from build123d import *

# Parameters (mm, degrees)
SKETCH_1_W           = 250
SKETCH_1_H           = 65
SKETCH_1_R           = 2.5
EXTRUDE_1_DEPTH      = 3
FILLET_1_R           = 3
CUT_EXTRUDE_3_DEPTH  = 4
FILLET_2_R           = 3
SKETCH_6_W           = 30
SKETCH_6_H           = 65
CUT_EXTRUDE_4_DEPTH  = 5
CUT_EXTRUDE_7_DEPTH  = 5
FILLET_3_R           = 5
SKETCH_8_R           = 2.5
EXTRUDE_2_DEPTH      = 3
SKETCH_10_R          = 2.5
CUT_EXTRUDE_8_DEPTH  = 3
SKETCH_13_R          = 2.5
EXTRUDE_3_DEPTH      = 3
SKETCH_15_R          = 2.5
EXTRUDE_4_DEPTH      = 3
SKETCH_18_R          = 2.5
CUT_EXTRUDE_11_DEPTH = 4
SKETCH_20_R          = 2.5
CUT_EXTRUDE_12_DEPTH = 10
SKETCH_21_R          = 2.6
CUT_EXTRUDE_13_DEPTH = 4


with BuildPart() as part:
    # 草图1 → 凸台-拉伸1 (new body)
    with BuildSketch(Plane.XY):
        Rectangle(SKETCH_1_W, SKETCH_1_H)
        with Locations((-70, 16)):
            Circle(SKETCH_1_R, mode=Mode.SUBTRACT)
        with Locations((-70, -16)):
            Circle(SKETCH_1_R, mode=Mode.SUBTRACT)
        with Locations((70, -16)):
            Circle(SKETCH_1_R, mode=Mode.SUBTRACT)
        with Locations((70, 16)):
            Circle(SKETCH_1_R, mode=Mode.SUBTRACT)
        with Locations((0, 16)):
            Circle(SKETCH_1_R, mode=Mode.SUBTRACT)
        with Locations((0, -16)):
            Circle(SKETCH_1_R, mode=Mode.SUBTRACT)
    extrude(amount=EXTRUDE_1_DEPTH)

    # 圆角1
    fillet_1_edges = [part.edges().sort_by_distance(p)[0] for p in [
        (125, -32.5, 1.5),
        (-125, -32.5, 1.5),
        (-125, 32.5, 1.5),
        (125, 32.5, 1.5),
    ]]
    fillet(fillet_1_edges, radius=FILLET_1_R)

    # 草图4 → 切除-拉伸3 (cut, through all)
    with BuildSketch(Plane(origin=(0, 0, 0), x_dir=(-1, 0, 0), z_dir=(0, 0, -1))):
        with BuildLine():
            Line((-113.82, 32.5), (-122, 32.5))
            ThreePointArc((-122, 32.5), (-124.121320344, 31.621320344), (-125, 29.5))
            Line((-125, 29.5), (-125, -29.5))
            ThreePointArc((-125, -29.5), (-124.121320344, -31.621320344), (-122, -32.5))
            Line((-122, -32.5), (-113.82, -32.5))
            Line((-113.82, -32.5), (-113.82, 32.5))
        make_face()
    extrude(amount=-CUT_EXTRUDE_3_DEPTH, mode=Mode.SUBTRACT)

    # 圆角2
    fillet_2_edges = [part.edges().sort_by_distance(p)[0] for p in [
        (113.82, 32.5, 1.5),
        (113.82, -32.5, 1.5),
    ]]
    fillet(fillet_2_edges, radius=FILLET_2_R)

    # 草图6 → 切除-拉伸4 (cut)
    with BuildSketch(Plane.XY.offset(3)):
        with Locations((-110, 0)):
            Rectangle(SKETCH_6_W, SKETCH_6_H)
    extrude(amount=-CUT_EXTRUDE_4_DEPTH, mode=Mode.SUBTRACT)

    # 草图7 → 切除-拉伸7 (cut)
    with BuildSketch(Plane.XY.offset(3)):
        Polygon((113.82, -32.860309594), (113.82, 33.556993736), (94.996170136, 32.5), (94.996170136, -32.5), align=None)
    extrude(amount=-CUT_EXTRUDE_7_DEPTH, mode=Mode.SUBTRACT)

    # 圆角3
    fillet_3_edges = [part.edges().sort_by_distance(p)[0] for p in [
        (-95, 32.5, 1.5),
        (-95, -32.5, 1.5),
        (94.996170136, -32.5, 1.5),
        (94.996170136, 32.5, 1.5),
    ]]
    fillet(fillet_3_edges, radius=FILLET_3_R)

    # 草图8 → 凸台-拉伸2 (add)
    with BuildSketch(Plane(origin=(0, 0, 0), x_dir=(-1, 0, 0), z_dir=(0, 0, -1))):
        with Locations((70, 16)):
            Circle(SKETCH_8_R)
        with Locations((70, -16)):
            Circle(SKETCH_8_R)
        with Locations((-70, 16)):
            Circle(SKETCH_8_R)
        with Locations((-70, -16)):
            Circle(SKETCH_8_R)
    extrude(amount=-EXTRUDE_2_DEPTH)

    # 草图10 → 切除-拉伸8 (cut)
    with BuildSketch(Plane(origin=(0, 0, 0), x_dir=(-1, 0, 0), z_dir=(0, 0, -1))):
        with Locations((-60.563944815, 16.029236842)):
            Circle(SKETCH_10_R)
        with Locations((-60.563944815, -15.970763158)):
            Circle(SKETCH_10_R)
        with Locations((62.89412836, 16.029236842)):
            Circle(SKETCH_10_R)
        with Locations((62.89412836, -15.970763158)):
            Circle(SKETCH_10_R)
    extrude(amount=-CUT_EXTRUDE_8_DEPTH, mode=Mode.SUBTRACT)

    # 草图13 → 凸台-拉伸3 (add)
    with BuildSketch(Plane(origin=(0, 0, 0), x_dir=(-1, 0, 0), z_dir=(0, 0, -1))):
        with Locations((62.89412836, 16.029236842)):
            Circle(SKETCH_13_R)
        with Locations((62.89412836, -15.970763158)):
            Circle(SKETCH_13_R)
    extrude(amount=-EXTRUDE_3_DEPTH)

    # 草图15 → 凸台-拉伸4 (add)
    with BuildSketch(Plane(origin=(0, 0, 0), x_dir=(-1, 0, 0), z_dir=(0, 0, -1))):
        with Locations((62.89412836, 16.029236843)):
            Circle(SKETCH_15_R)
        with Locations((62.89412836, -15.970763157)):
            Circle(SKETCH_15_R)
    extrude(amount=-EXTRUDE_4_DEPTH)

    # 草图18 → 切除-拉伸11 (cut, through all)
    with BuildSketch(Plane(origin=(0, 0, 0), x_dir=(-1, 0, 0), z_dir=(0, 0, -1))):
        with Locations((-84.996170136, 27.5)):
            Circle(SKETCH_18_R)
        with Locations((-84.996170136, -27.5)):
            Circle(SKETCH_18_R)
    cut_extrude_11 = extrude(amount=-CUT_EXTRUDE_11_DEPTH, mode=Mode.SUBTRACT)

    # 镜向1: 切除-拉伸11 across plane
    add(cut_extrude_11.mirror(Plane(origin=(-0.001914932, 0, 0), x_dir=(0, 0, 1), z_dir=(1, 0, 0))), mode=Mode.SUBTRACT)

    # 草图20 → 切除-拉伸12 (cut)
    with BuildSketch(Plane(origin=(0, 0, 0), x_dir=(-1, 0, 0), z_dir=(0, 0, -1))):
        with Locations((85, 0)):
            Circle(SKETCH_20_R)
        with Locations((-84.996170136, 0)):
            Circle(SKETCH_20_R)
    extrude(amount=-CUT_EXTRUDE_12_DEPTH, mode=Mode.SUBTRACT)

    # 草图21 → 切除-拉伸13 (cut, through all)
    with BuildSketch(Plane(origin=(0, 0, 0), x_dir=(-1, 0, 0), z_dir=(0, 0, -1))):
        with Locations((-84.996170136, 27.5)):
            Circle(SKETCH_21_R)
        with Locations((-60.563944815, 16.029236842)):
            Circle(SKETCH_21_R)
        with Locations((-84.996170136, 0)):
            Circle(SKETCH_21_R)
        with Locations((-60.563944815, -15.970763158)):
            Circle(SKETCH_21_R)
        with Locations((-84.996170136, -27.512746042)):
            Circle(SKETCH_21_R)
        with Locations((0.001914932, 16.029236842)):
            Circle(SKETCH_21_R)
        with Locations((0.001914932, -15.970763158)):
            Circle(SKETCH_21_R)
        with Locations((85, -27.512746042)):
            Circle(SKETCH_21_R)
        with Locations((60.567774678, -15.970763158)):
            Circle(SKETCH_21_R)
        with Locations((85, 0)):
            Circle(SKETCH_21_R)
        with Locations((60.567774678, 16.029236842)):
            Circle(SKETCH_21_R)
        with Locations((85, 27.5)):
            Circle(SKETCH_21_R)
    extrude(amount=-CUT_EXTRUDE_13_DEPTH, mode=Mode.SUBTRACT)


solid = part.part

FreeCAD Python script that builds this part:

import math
import FreeCAD as App
import Part
import Sketcher

V = App.Vector
Q = App.Units.Quantity


def edges_at(feature, points):
    """Names of the edges that pass closest to the given points."""
    edges = feature.Shape.Edges
    near = lambda p: min(range(len(edges)), key=lambda i: edges[i].distToShape(Part.Vertex(*p))[0])
    return sorted({f"Edge{near(p) + 1}" for p in points})

doc = App.newDocument("Part")
body = doc.addObject("PartDesign::Body", "Body")

# Sketch on XY plane
sketch1 = body.newObject("Sketcher::SketchObject", "Sketch")
sketch1.AttachmentSupport = (doc.getObject("XY_Plane"), [""])
sketch1.MapMode = "FlatFace"
sketch1.addGeometry([
    Part.LineSegment(V(-125, 32.5, 0), V(-125, -32.5, 0)),  # 0
    Part.LineSegment(V(-125, -32.5, 0), V(125, -32.5, 0)),  # 1
    Part.LineSegment(V(125, -32.5, 0), V(125, 32.5, 0)),  # 2
    Part.LineSegment(V(125, 32.5, 0), V(-125, 32.5, 0)),  # 3
    Part.Circle(V(-70, -16, 0), V(0, 0, 1), 2.5),  # 4
    Part.Circle(V(0, -16, 0), V(0, 0, 1), 2.5),  # 5
    Part.Circle(V(70, -16, 0), V(0, 0, 1), 2.5),  # 6
    Part.Circle(V(-70, 16, 0), V(0, 0, 1), 2.5),  # 7
    Part.Circle(V(0, 16, 0), V(0, 0, 1), 2.5),  # 8
    Part.Circle(V(70, 16, 0), V(0, 0, 1), 2.5),  # 9
], False)
sketch1.addConstraint([
    Sketcher.Constraint("Coincident", 0, 2, 1, 1),
    Sketcher.Constraint("Coincident", 1, 2, 2, 1),
    Sketcher.Constraint("Coincident", 2, 2, 3, 1),
    Sketcher.Constraint("Coincident", 3, 2, 0, 1),
    Sketcher.Constraint("Vertical", 0),
    Sketcher.Constraint("Horizontal", 1),
    Sketcher.Constraint("Vertical", 2),
    Sketcher.Constraint("Horizontal", 3),
    Sketcher.Constraint("Equal", 4, 5),
    Sketcher.Constraint("Equal", 5, 6),
    Sketcher.Constraint("Equal", 6, 7),
    Sketcher.Constraint("Equal", 7, 8),
    Sketcher.Constraint("Equal", 8, 9),
    Sketcher.Constraint("Symmetric", 6, 3, 7, 3, -1, 1),
    Sketcher.Constraint("Symmetric", 5, 3, 8, 3, -1, 1),
    Sketcher.Constraint("Symmetric", 4, 3, 9, 3, -1, 1),
    Sketcher.Constraint("Symmetric", 0, 2, 2, 2, -1, 1),
    Sketcher.Constraint("Symmetric", 4, 3, 6, 3, -2),
    Sketcher.Constraint("PointOnObject", 5, 3, -2),
    Sketcher.Constraint("Horizontal", 4, 3, 5, 3),
    Sketcher.Constraint("Diameter", 4, Q("5 mm")),
    Sketcher.Constraint("DistanceX", 1, 1, 1, 2, Q("250 mm")),
    Sketcher.Constraint("DistanceY", 0, 2, 0, 1, Q("65 mm")),
    Sketcher.Constraint("DistanceX", 4, 3, -1, 1, Q("70 mm")),
    Sketcher.Constraint("DistanceY", 4, 3, -1, 1, Q("16 mm")),
])
pad1 = body.newObject("PartDesign::Pad", "Pad")
pad1.Profile = sketch1
pad1.Length = 3
doc.recompute()

fillet = body.newObject("PartDesign::Fillet", "Fillet")
fillet.Base = (pad1, edges_at(pad1, [
    (125, -32.5, 1.5),
    (-125, -32.5, 1.5),
    (-125, 32.5, 1.5),
    (125, 32.5, 1.5),
]))
fillet.Radius = 3

# Sketch on XY plane
sketch2 = body.newObject("Sketcher::SketchObject", "Sketch001")
sketch2.AttachmentSupport = (doc.getObject("XY_Plane"), [""])
sketch2.MapMode = "FlatFace"
sketch2.addGeometry([
    Part.LineSegment(V(113.82, 32.5, 0), V(122, 32.5, 0)),  # 0
    Part.ArcOfCircle(Part.Circle(V(122, 29.5, 0), V(0, 0, 1), 3), math.radians(0), math.radians(90)),  # 1
    Part.LineSegment(V(125, 29.5, 0), V(125, -29.5, 0)),  # 2
    Part.ArcOfCircle(Part.Circle(V(122, -29.5, 0), V(0, 0, 1), 3), math.radians(-90), math.radians(0)),  # 3
    Part.LineSegment(V(122, -32.5, 0), V(113.82, -32.5, 0)),  # 4
    Part.LineSegment(V(113.82, -32.5, 0), V(113.82, 32.5, 0)),  # 5
], False)
sketch2.addConstraint([
    Sketcher.Constraint("Tangent", 0, 2, 1, 2),
    Sketcher.Constraint("Tangent", 1, 1, 2, 1),
    Sketcher.Constraint("Tangent", 2, 2, 3, 2),
    Sketcher.Constraint("Tangent", 3, 1, 4, 1),
    Sketcher.Constraint("Coincident", 4, 2, 5, 1),
    Sketcher.Constraint("Coincident", 5, 2, 0, 1),
    Sketcher.Constraint("Horizontal", 0),
    Sketcher.Constraint("Vertical", 2),
    Sketcher.Constraint("Horizontal", 4),
    Sketcher.Constraint("Vertical", 5),
    Sketcher.Constraint("Equal", 1, 3),
    Sketcher.Constraint("Radius", 1, Q("3 mm")),
    Sketcher.Constraint("DistanceY", 2, 2, 2, 1, Q("59 mm")),
    Sketcher.Constraint("DistanceX", -1, 1, 1, 3, Q("122 mm")),
    Sketcher.Constraint("DistanceX", 0, 1, 0, 2, Q("8.18 mm")),
    Sketcher.Constraint("DistanceY", -1, 1, 1, 3, Q("29.5 mm")),
])
pocket1 = body.newObject("PartDesign::Pocket", "Pocket")
pocket1.Profile = sketch2
pocket1.Type = "ThroughAll"
pocket1.Reversed = True
doc.recompute()

fillet2 = body.newObject("PartDesign::Fillet", "Fillet001")
fillet2.Base = (pocket1, edges_at(pocket1, [(113.82, 32.5, 1.5), (113.82, -32.5, 1.5)]))
fillet2.Radius = 3

# Sketch on XY plane
sketch3 = body.newObject("Sketcher::SketchObject", "Sketch002")
sketch3.AttachmentSupport = (doc.getObject("XY_Plane"), [""])
sketch3.MapMode = "FlatFace"
sketch3.AttachmentOffset = App.Placement(V(0, 0, 3), App.Rotation())
sketch3.addGeometry([
    Part.LineSegment(V(-125, 32.5, 0), V(-125, -32.5, 0)),
    Part.LineSegment(V(-125, -32.5, 0), V(-95, -32.5, 0)),
    Part.LineSegment(V(-95, -32.5, 0), V(-95, 32.5, 0)),
    Part.LineSegment(V(-95, 32.5, 0), V(-125, 32.5, 0)),
], False)
sketch3.addConstraint([
    Sketcher.Constraint("Coincident", 0, 2, 1, 1),
    Sketcher.Constraint("Coincident", 1, 2, 2, 1),
    Sketcher.Constraint("Coincident", 2, 2, 3, 1),
    Sketcher.Constraint("Coincident", 3, 2, 0, 1),
    Sketcher.Constraint("Vertical", 0),
    Sketcher.Constraint("Horizontal", 1),
    Sketcher.Constraint("Vertical", 2),
    Sketcher.Constraint("Horizontal", 3),
    Sketcher.Constraint("DistanceX", 1, 1, 1, 2, Q("30 mm")),
    Sketcher.Constraint("DistanceY", 0, 2, 0, 1, Q("65 mm")),
    Sketcher.Constraint("DistanceX", 0, 2, -1, 1, Q("125 mm")),
    Sketcher.Constraint("DistanceY", 0, 2, -1, 1, Q("32.5 mm")),
])
pocket2 = body.newObject("PartDesign::Pocket", "Pocket001")
pocket2.Profile = sketch3
pocket2.Length = 5

# Sketch on XY plane
sketch4 = body.newObject("Sketcher::SketchObject", "Sketch003")
sketch4.AttachmentSupport = (doc.getObject("XY_Plane"), [""])
sketch4.MapMode = "FlatFace"
sketch4.AttachmentOffset = App.Placement(V(0, 0, 3), App.Rotation())
sketch4.addGeometry([
    Part.LineSegment(V(113.82, -32.86031, 0), V(113.82, 33.556994, 0)),
    Part.LineSegment(V(113.82, 33.556994, 0), V(94.99617, 32.5, 0)),
    Part.LineSegment(V(94.99617, 32.5, 0), V(94.99617, -32.5, 0)),
    Part.LineSegment(V(94.99617, -32.5, 0), V(113.82, -32.86031, 0)),
], False)
sketch4.addConstraint([
    Sketcher.Constraint("Coincident", 0, 2, 1, 1),
    Sketcher.Constraint("Coincident", 1, 2, 2, 1),
    Sketcher.Constraint("Coincident", 2, 2, 3, 1),
    Sketcher.Constraint("Coincident", 3, 2, 0, 1),
    Sketcher.Constraint("Vertical", 0),
    Sketcher.Constraint("Vertical", 2),
    Sketcher.Constraint("DistanceY", 2, 2, 2, 1, Q("65 mm")),
    Sketcher.Constraint("DistanceY", -1, 1, 1, 2, Q("32.5 mm")),
    Sketcher.Constraint("DistanceX", -1, 1, 0, 2, Q("113.82 mm")),
    Sketcher.Constraint("DistanceY", 0, 1, 0, 2, Q("66.417303 mm")),
    Sketcher.Constraint("DistanceX", -1, 1, 1, 2, Q("94.99617 mm")),
    Sketcher.Constraint("DistanceY", 3, 2, -1, 1, Q("32.86031 mm")),
])
pocket3 = body.newObject("PartDesign::Pocket", "Pocket002")
pocket3.Profile = sketch4
pocket3.Length = 5
doc.recompute()

fillet3 = body.newObject("PartDesign::Fillet", "Fillet002")
fillet3.Base = (pocket3, edges_at(pocket3, [
    (-95, 32.5, 1.5),
    (-95, -32.5, 1.5),
    (94.996, -32.5, 1.5),
    (94.996, 32.5, 1.5),
]))
fillet3.Radius = 5

# Sketch on XY plane
sketch5 = body.newObject("Sketcher::SketchObject", "Sketch004")
sketch5.AttachmentSupport = (doc.getObject("XY_Plane"), [""])
sketch5.MapMode = "FlatFace"
sketch5.addGeometry([
    Part.Circle(V(-70, 16, 0), V(0, 0, 1), 2.5),
    Part.Circle(V(-70, -16, 0), V(0, 0, 1), 2.5),
    Part.Circle(V(70, 16, 0), V(0, 0, 1), 2.5),
    Part.Circle(V(70, -16, 0), V(0, 0, 1), 2.5),
], False)
sketch5.addConstraint([
    Sketcher.Constraint("Equal", 0, 1),
    Sketcher.Constraint("Equal", 1, 2),
    Sketcher.Constraint("Equal", 2, 3),
    Sketcher.Constraint("Symmetric", 1, 3, 2, 3, -1, 1),
    Sketcher.Constraint("Symmetric", 0, 3, 3, 3, -1, 1),
    Sketcher.Constraint("Symmetric", 0, 3, 2, 3, -2),
    Sketcher.Constraint("Diameter", 0, Q("5 mm")),
    Sketcher.Constraint("DistanceX", 0, 3, -1, 1, Q("70 mm")),
    Sketcher.Constraint("DistanceY", -1, 1, 0, 3, Q("16 mm")),
])
pad2 = body.newObject("PartDesign::Pad", "Pad001")
pad2.Profile = sketch5
pad2.Length = 3

# Sketch on XY plane
sketch6 = body.newObject("Sketcher::SketchObject", "Sketch005")
sketch6.AttachmentSupport = (doc.getObject("XY_Plane"), [""])
sketch6.MapMode = "FlatFace"
sketch6.addGeometry([
    Part.Circle(V(60.563945, 16.029237, 0), V(0, 0, 1), 2.5),
    Part.Circle(V(60.563945, -15.970763, 0), V(0, 0, 1), 2.5),
    Part.Circle(V(-62.894128, 16.029237, 0), V(0, 0, 1), 2.5),
    Part.Circle(V(-62.894128, -15.970763, 0), V(0, 0, 1), 2.5),
], False)
sketch6.addConstraint([
    Sketcher.Constraint("Equal", 0, 1),
    Sketcher.Constraint("Equal", 1, 2),
    Sketcher.Constraint("Equal", 2, 3),
    Sketcher.Constraint("Horizontal", 0, 3, 2, 3),
    Sketcher.Constraint("Horizontal", 1, 3, 3, 3),
    Sketcher.Constraint("Vertical", 0, 3, 1, 3),
    Sketcher.Constraint("Vertical", 2, 3, 3, 3),
    Sketcher.Constraint("Diameter", 0, Q("5 mm")),
    Sketcher.Constraint("DistanceY", 1, 3, 0, 3, Q("32 mm")),
    Sketcher.Constraint("DistanceX", 2, 3, -1, 1, Q("62.894128 mm")),
    Sketcher.Constraint("DistanceX", -1, 1, 0, 3, Q("60.563945 mm")),
    Sketcher.Constraint("DistanceY", -1, 1, 0, 3, Q("16.029237 mm")),
])
pocket4 = body.newObject("PartDesign::Pocket", "Pocket003")
pocket4.Profile = sketch6
pocket4.Length = 3
pocket4.Reversed = True

# Sketch on XY plane
sketch7 = body.newObject("Sketcher::SketchObject", "Sketch006")
sketch7.AttachmentSupport = (doc.getObject("XY_Plane"), [""])
sketch7.MapMode = "FlatFace"
sketch7.addGeometry([
    Part.Circle(V(-62.894128, 16.029237, 0), V(0, 0, 1), 2.5),
    Part.Circle(V(-62.894128, -15.970763, 0), V(0, 0, 1), 2.5),
], False)
sketch7.addConstraint([
    Sketcher.Constraint("Equal", 0, 1),
    Sketcher.Constraint("Vertical", 0, 3, 1, 3),
    Sketcher.Constraint("Diameter", 0, Q("5 mm")),
    Sketcher.Constraint("DistanceY", 1, 3, 0, 3, Q("32 mm")),
    Sketcher.Constraint("DistanceX", 0, 3, -1, 1, Q("62.894128 mm")),
    Sketcher.Constraint("DistanceY", -1, 1, 0, 3, Q("16.029237 mm")),
])
pad3 = body.newObject("PartDesign::Pad", "Pad002")
pad3.Profile = sketch7
pad3.Length = 3

# Sketch on XY plane
sketch8 = body.newObject("Sketcher::SketchObject", "Sketch007")
sketch8.AttachmentSupport = (doc.getObject("XY_Plane"), [""])
sketch8.MapMode = "FlatFace"
sketch8.addGeometry([
    Part.Circle(V(-62.894128, 16.029237, 0), V(0, 0, 1), 2.5),
    Part.Circle(V(-62.894128, -15.970763, 0), V(0, 0, 1), 2.5),
], False)
sketch8.addConstraint([
    Sketcher.Constraint("Equal", 0, 1),
    Sketcher.Constraint("Vertical", 0, 3, 1, 3),
    Sketcher.Constraint("Diameter", 0, Q("5 mm")),
    Sketcher.Constraint("DistanceY", 1, 3, 0, 3, Q("32 mm")),
    Sketcher.Constraint("DistanceX", 0, 3, -1, 1, Q("62.894128 mm")),
    Sketcher.Constraint("DistanceY", -1, 1, 0, 3, Q("16.029237 mm")),
])
pad4 = body.newObject("PartDesign::Pad", "Pad003")
pad4.Profile = sketch8
pad4.Length = 3

# Sketch on XY plane
sketch9 = body.newObject("Sketcher::SketchObject", "Sketch008")
sketch9.AttachmentSupport = (doc.getObject("XY_Plane"), [""])
sketch9.MapMode = "FlatFace"
sketch9.addGeometry([
    Part.Circle(V(84.99617, 27.5, 0), V(0, 0, 1), 2.5),
    Part.Circle(V(84.99617, -27.5, 0), V(0, 0, 1), 2.5),
], False)
sketch9.addConstraint([
    Sketcher.Constraint("Equal", 0, 1),
    Sketcher.Constraint("Symmetric", 0, 3, 1, 3, -1),
    Sketcher.Constraint("Diameter", 0, Q("5 mm")),
    Sketcher.Constraint("DistanceY", 1, 3, 0, 3, Q("55 mm")),
    Sketcher.Constraint("DistanceX", -1, 1, 0, 3, Q("84.99617 mm")),
])
pocket5 = body.newObject("PartDesign::Pocket", "Pocket004")
pocket5.Profile = sketch9
pocket5.Type = "ThroughAll"
pocket5.Reversed = True
doc.recompute()

datumplane = body.newObject("PartDesign::Plane", "DatumPlane")
datumplane.AttachmentSupport = (doc.getObject("YZ_Plane"), [""])
datumplane.MapMode = "FlatFace"
datumplane.AttachmentOffset = App.Placement(V(0, 0, -0.001915), App.Rotation())
mirrored = body.newObject("PartDesign::Mirrored", "Mirrored")
mirrored.Originals = [pocket5]
mirrored.MirrorPlane = (datumplane, [""])
body.Tip = mirrored

# Sketch on XY plane
sketch10 = body.newObject("Sketcher::SketchObject", "Sketch009")
sketch10.AttachmentSupport = (doc.getObject("XY_Plane"), [""])
sketch10.MapMode = "FlatFace"
sketch10.addGeometry([
    Part.Circle(V(-85, 0, 0), V(0, 0, 1), 2.5),
    Part.Circle(V(84.99617, 0, 0), V(0, 0, 1), 2.5),
], False)
sketch10.addConstraint([
    Sketcher.Constraint("Equal", 0, 1),
    Sketcher.Constraint("PointOnObject", 0, 3, -1),
    Sketcher.Constraint("PointOnObject", 1, 3, -1),
    Sketcher.Constraint("Diameter", 0, Q("5 mm")),
    Sketcher.Constraint("DistanceX", 0, 3, -1, 1, Q("85 mm")),
    Sketcher.Constraint("DistanceX", -1, 1, 1, 3, Q("84.99617 mm")),
])
pocket6 = body.newObject("PartDesign::Pocket", "Pocket005")
pocket6.Profile = sketch10
pocket6.Length = 10
pocket6.Reversed = True

# Sketch on XY plane
sketch11 = body.newObject("Sketcher::SketchObject", "Sketch010")
sketch11.AttachmentSupport = (doc.getObject("XY_Plane"), [""])
sketch11.MapMode = "FlatFace"
sketch11.addGeometry([
    Part.Circle(V(84.99617, 27.5, 0), V(0, 0, 1), 2.6),  # 0
    Part.Circle(V(60.563945, 16.029237, 0), V(0, 0, 1), 2.6),  # 1
    Part.Circle(V(84.99617, 0, 0), V(0, 0, 1), 2.6),  # 2
    Part.Circle(V(60.563945, -15.970763, 0), V(0, 0, 1), 2.6),  # 3
    Part.Circle(V(84.99617, -27.512746, 0), V(0, 0, 1), 2.6),  # 4
    Part.Circle(V(-0.001915, 16.029237, 0), V(0, 0, 1), 2.6),  # 5
    Part.Circle(V(-0.001915, -15.970763, 0), V(0, 0, 1), 2.6),  # 6
    Part.Circle(V(-85, -27.512746, 0), V(0, 0, 1), 2.6),  # 7
    Part.Circle(V(-60.567775, -15.970763, 0), V(0, 0, 1), 2.6),  # 8
    Part.Circle(V(-85, 0, 0), V(0, 0, 1), 2.6),  # 9
    Part.Circle(V(-60.567775, 16.029237, 0), V(0, 0, 1), 2.6),  # 10
    Part.Circle(V(-85, 27.5, 0), V(0, 0, 1), 2.6),  # 11
], False)
sketch11.addConstraint([
    Sketcher.Constraint("Equal", 0, 1),
    Sketcher.Constraint("Equal", 1, 2),
    Sketcher.Constraint("Equal", 2, 3),
    Sketcher.Constraint("Equal", 3, 4),
    Sketcher.Constraint("Equal", 4, 5),
    Sketcher.Constraint("Equal", 5, 6),
    Sketcher.Constraint("Equal", 6, 7),
    Sketcher.Constraint("Equal", 7, 8),
    Sketcher.Constraint("Equal", 8, 9),
    Sketcher.Constraint("Equal", 9, 10),
    Sketcher.Constraint("Equal", 10, 11),
    Sketcher.Constraint("PointOnObject", 2, 3, -1),
    Sketcher.Constraint("PointOnObject", 9, 3, -1),
    Sketcher.Constraint("Horizontal", 1, 3, 5, 3),
    Sketcher.Constraint("Horizontal", 3, 3, 6, 3),
    Sketcher.Constraint("Horizontal", 4, 3, 7, 3),
    Sketcher.Constraint("Horizontal", 6, 3, 8, 3),
    Sketcher.Constraint("Horizontal", 5, 3, 10, 3),
    Sketcher.Constraint("Horizontal", 0, 3, 11, 3),
    Sketcher.Constraint("Vertical", 0, 3, 2, 3),
    Sketcher.Constraint("Vertical", 1, 3, 3, 3),
    Sketcher.Constraint("Vertical", 2, 3, 4, 3),
    Sketcher.Constraint("Vertical", 5, 3, 6, 3),
    Sketcher.Constraint("Vertical", 7, 3, 9, 3),
    Sketcher.Constraint("Vertical", 8, 3, 10, 3),
    Sketcher.Constraint("Vertical", 9, 3, 11, 3),
    Sketcher.Constraint("Diameter", 0, Q("5.2 mm")),
    Sketcher.Constraint("DistanceX", 7, 3, -1, 1, Q("85 mm")),
    Sketcher.Constraint("DistanceY", 3, 3, 1, 3, Q("32 mm")),
    Sketcher.Constraint("DistanceY", -1, 1, 0, 3, Q("27.5 mm")),
    Sketcher.Constraint("DistanceX", -1, 1, 0, 3, Q("84.99617 mm")),
    Sketcher.Constraint("DistanceX", 5, 3, 1, 3, Q("60.56586 mm")),
    Sketcher.Constraint("DistanceX", 8, 3, 6, 3, Q("60.56586 mm")),
    Sketcher.Constraint("DistanceX", -1, 1, 1, 3, Q("60.563945 mm")),
    Sketcher.Constraint("DistanceY", -1, 1, 1, 3, Q("16.029237 mm")),
    Sketcher.Constraint("DistanceY", 4, 3, -1, 1, Q("27.512746 mm")),
])
pocket7 = body.newObject("PartDesign::Pocket", "Pocket006")
pocket7.Profile = sketch11
pocket7.Type = "ThroughAll"
pocket7.Reversed = True

doc.recompute()
